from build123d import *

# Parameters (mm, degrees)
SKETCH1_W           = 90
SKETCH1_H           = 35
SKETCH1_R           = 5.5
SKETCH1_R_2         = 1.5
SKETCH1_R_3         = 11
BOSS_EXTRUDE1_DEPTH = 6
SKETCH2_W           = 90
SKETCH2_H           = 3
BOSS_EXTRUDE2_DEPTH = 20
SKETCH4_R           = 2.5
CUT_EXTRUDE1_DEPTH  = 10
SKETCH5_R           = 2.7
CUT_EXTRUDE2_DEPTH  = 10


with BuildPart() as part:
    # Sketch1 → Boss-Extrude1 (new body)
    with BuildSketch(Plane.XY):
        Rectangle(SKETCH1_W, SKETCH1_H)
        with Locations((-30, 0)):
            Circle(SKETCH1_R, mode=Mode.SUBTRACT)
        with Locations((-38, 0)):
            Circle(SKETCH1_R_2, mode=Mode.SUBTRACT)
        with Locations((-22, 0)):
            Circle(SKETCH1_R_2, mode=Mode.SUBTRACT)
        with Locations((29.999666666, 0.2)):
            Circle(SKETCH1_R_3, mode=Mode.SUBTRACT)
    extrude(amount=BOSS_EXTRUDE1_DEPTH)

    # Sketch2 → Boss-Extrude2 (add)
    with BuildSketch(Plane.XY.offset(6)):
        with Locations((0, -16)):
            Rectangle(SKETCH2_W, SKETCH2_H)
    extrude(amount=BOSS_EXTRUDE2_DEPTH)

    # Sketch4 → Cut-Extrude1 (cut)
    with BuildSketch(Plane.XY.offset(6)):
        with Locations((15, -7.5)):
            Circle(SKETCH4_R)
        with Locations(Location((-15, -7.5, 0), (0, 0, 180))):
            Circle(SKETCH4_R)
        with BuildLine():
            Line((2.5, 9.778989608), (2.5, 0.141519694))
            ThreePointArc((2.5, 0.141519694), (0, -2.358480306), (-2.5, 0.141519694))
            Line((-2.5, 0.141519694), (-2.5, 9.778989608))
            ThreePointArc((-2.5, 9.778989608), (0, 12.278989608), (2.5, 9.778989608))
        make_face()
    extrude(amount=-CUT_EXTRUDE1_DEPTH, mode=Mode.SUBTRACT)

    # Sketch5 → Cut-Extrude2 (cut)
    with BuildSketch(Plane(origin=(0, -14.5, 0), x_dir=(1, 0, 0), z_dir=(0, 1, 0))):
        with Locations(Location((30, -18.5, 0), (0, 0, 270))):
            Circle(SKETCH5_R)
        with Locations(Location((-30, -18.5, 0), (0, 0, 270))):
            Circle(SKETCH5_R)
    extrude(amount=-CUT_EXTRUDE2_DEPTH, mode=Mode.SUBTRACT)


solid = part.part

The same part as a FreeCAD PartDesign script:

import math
import FreeCAD as App
import Part
import Sketcher

V = App.Vector


def add_polygon(sketch, points):
    """Adds a closed chain of lines whose ends are joined by coincident constraints."""
    first, n = sketch.GeometryCount, len(points)
    for a, b in zip(points, points[1:] + points[:1]):
        sketch.addGeometry(Part.LineSegment(App.Vector(*a, 0), App.Vector(*b, 0)), False)
    for i in range(n):
        sketch.addConstraint(Sketcher.Constraint("Coincident", first + i, 2, first + (i + 1) % n, 1))

doc = App.newDocument("Part")
body = doc.addObject("PartDesign::Body", "Body")

sketch1 = body.newObject("Sketcher::SketchObject", "Sketch")
sketch1.AttachmentSupport = (doc.getObject("XY_Plane"), [""])
sketch1.MapMode = "FlatFace"
add_polygon(sketch1, [(-45, 17.5), (-45, -17.5), (45, -17.5), (45, 17.5)])
sketch1.addGeometry(Part.Circle(V(-38, 0, 0), V(0, 0, 1), 1.5), False)
sketch1.addGeometry(Part.Circle(V(-30, 0, 0), V(0, 0, 1), 5.5), False)
sketch1.addGeometry(Part.Circle(V(-22, 0, 0), V(0, 0, 1), 1.5), False)
sketch1.addGeometry(Part.Circle(V(30, 0.2, 0), V(0, 0, 1), 11), False)
sketch1.addConstraint([
    Sketcher.Constraint("Vertical", 0),
    Sketcher.Constraint("Horizontal", 1),
    Sketcher.Constraint("Vertical", 2),
    Sketcher.Constraint("Horizontal", 3),
    Sketcher.Constraint("Equal", 4, 6),
    Sketcher.Constraint("Symmetric", 0, 2, 2, 2, -1, 1),
    Sketcher.Constraint("PointOnObject", 4, 3, -1),
    Sketcher.Constraint("PointOnObject", 5, 3, -1),
    Sketcher.Constraint("PointOnObject", 6, 3, -1),
    Sketcher.Constraint("Diameter", 4, 3.0),
    Sketcher.Constraint("Diameter", 5, 11.0),
    Sketcher.Constraint("Diameter", 7, 22.0),
    Sketcher.Constraint("DistanceX", 1, 1, 1, 2, 90.0),
    Sketcher.Constraint("DistanceY", 0, 2, 0, 1, 35.0),
    Sketcher.Constraint("DistanceX", 4, 3, -1, 1, 38.0),
    Sketcher.Constraint("DistanceX", 5, 3, -1, 1, 30.0),
    Sketcher.Constraint("DistanceX", 6, 3, -1, 1, 22.0),
    Sketcher.Constraint("DistanceY", -1, 1, 7, 3, 0.2),
    Sketcher.Constraint("DistanceX", -1, 1, 7, 3, 29.999667),
])
pad1 = body.newObject("PartDesign::Pad", "Pad")
pad1.Profile = sketch1
pad1.Length = 6

sketch2 = body.newObject("Sketcher::SketchObject", "Sketch001")
sketch2.AttachmentSupport = (doc.getObject("XY_Plane"), [""])
sketch2.MapMode = "FlatFace"
sketch2.AttachmentOffset = App.Placement(V(0, 0, 6), App.Rotation())
add_polygon(sketch2, [(-45, -14.5), (-45, -17.5), (45, -17.5), (45, -14.5)])
sketch2.addConstraint([
    Sketcher.Constraint("Vertical", 0),
    Sketcher.Constraint("Horizontal", 1),
    Sketcher.Constraint("Vertical", 2),
    Sketcher.Constraint("Horizontal", 3),
    Sketcher.Constraint("DistanceX", 1, 1, 1, 2, 90.0),
    Sketcher.Constraint("DistanceY", 0, 2, 0, 1, 3.0),
    Sketcher.Constraint("DistanceX", 0, 2, -1, 1, 45.0),
    Sketcher.Constraint("DistanceY", 0, 2, -1, 1, 17.5),
])
pad2 = body.newObject("PartDesign::Pad", "Pad001")
pad2.Profile = sketch2
pad2.Length = 20

sketch3 = body.newObject("Sketcher::SketchObject", "Sketch002")
sketch3.AttachmentSupport = (doc.getObject("XY_Plane"), [""])
sketch3.MapMode = "FlatFace"
sketch3.AttachmentOffset = App.Placement(V(0, 0, 6), App.Rotation())
sketch3.addGeometry([
    Part.Circle(V(15, -7.5, 0), V(0, 0, 1), 2.5),
    Part.Circle(V(-15, -7.5, 0), V(0, 0, 1), 2.5),
    Part.LineSegment(V(2.5, 0.1, 0), V(2.5, 9.8, 0)),
    Part.ArcOfCircle(Part.Circle(V(0, 9.8, 0), V(0, 0, 1), 2.5), math.radians(0), math.radians(180)),
    Part.LineSegment(V(-2.5, 9.8, 0), V(-2.5, 0.1, 0)),
    Part.ArcOfCircle(Part.Circle(V(0, 0.1, 0), V(0, 0, 1), 2.5), math.radians(180), math.radians(360)),
], False)
sketch3.addConstraint([
    Sketcher.Constraint("Tangent", 2, 2, 3, 1),
    Sketcher.Constraint("Tangent", 3, 2, 4, 1),
    Sketcher.Constraint("Tangent", 4, 2, 5, 1),
    Sketcher.Constraint("Tangent", 5, 2, 2, 1),
    Sketcher.Constraint("Vertical", 2),
    Sketcher.Constraint("Vertical", 4),
    Sketcher.Constraint("Equal", 0, 1),
    Sketcher.Constraint("Equal", 1, 3),
    Sketcher.Constraint("Symmetric", 0, 3, 1, 3, -2),
    Sketcher.Constraint("PointOnObject", 3, 3, -2),
    Sketcher.Constraint("Diameter", 0, 5.0),
    Sketcher.Constraint("DistanceX", -1, 1, 0, 3, 15.0),
    Sketcher.Constraint("DistanceY", 0, 3, -1, 1, 7.5),
    Sketcher.Constraint("DistanceY", 2, 1, 2, 2, 9.63747),
    Sketcher.Constraint("DistanceY", -1, 1, 3, 3, 9.77899),
])
pocket1 = body.newObject("PartDesign::Pocket", "Pocket")
pocket1.Profile = sketch3
pocket1.Length = 10

sketch4 = body.newObject("Sketcher::SketchObject", "Sketch003")
sketch4.AttachmentSupport = (doc.getObject("XZ_Plane"), [""])
sketch4.MapMode = "FlatFace"
sketch4.AttachmentOffset = App.Placement(V(0, 0, 14.5), App.Rotation())
sketch4.addGeometry([
    Part.Circle(V(30, 18.5, 0), V(0, 0, 1), 2.7),
    Part.Circle(V(-30, 18.5, 0), V(0, 0, 1), 2.7),
], False)
sketch4.addConstraint([
    Sketcher.Constraint("Equal", 0, 1),
    Sketcher.Constraint("Symmetric", 0, 3, 1, 3, -2),
    Sketcher.Constraint("Diameter", 0, 5.4),
    Sketcher.Constraint("DistanceX", -1, 1, 0, 3, 30.0),
    Sketcher.Constraint("DistanceY", -1, 1, 0, 3, 18.5),
])
pocket2 = body.newObject("PartDesign::Pocket", "Pocket001")
pocket2.Profile = sketch4
pocket2.Length = 10
pocket2.Reversed = True

doc.recompute()
